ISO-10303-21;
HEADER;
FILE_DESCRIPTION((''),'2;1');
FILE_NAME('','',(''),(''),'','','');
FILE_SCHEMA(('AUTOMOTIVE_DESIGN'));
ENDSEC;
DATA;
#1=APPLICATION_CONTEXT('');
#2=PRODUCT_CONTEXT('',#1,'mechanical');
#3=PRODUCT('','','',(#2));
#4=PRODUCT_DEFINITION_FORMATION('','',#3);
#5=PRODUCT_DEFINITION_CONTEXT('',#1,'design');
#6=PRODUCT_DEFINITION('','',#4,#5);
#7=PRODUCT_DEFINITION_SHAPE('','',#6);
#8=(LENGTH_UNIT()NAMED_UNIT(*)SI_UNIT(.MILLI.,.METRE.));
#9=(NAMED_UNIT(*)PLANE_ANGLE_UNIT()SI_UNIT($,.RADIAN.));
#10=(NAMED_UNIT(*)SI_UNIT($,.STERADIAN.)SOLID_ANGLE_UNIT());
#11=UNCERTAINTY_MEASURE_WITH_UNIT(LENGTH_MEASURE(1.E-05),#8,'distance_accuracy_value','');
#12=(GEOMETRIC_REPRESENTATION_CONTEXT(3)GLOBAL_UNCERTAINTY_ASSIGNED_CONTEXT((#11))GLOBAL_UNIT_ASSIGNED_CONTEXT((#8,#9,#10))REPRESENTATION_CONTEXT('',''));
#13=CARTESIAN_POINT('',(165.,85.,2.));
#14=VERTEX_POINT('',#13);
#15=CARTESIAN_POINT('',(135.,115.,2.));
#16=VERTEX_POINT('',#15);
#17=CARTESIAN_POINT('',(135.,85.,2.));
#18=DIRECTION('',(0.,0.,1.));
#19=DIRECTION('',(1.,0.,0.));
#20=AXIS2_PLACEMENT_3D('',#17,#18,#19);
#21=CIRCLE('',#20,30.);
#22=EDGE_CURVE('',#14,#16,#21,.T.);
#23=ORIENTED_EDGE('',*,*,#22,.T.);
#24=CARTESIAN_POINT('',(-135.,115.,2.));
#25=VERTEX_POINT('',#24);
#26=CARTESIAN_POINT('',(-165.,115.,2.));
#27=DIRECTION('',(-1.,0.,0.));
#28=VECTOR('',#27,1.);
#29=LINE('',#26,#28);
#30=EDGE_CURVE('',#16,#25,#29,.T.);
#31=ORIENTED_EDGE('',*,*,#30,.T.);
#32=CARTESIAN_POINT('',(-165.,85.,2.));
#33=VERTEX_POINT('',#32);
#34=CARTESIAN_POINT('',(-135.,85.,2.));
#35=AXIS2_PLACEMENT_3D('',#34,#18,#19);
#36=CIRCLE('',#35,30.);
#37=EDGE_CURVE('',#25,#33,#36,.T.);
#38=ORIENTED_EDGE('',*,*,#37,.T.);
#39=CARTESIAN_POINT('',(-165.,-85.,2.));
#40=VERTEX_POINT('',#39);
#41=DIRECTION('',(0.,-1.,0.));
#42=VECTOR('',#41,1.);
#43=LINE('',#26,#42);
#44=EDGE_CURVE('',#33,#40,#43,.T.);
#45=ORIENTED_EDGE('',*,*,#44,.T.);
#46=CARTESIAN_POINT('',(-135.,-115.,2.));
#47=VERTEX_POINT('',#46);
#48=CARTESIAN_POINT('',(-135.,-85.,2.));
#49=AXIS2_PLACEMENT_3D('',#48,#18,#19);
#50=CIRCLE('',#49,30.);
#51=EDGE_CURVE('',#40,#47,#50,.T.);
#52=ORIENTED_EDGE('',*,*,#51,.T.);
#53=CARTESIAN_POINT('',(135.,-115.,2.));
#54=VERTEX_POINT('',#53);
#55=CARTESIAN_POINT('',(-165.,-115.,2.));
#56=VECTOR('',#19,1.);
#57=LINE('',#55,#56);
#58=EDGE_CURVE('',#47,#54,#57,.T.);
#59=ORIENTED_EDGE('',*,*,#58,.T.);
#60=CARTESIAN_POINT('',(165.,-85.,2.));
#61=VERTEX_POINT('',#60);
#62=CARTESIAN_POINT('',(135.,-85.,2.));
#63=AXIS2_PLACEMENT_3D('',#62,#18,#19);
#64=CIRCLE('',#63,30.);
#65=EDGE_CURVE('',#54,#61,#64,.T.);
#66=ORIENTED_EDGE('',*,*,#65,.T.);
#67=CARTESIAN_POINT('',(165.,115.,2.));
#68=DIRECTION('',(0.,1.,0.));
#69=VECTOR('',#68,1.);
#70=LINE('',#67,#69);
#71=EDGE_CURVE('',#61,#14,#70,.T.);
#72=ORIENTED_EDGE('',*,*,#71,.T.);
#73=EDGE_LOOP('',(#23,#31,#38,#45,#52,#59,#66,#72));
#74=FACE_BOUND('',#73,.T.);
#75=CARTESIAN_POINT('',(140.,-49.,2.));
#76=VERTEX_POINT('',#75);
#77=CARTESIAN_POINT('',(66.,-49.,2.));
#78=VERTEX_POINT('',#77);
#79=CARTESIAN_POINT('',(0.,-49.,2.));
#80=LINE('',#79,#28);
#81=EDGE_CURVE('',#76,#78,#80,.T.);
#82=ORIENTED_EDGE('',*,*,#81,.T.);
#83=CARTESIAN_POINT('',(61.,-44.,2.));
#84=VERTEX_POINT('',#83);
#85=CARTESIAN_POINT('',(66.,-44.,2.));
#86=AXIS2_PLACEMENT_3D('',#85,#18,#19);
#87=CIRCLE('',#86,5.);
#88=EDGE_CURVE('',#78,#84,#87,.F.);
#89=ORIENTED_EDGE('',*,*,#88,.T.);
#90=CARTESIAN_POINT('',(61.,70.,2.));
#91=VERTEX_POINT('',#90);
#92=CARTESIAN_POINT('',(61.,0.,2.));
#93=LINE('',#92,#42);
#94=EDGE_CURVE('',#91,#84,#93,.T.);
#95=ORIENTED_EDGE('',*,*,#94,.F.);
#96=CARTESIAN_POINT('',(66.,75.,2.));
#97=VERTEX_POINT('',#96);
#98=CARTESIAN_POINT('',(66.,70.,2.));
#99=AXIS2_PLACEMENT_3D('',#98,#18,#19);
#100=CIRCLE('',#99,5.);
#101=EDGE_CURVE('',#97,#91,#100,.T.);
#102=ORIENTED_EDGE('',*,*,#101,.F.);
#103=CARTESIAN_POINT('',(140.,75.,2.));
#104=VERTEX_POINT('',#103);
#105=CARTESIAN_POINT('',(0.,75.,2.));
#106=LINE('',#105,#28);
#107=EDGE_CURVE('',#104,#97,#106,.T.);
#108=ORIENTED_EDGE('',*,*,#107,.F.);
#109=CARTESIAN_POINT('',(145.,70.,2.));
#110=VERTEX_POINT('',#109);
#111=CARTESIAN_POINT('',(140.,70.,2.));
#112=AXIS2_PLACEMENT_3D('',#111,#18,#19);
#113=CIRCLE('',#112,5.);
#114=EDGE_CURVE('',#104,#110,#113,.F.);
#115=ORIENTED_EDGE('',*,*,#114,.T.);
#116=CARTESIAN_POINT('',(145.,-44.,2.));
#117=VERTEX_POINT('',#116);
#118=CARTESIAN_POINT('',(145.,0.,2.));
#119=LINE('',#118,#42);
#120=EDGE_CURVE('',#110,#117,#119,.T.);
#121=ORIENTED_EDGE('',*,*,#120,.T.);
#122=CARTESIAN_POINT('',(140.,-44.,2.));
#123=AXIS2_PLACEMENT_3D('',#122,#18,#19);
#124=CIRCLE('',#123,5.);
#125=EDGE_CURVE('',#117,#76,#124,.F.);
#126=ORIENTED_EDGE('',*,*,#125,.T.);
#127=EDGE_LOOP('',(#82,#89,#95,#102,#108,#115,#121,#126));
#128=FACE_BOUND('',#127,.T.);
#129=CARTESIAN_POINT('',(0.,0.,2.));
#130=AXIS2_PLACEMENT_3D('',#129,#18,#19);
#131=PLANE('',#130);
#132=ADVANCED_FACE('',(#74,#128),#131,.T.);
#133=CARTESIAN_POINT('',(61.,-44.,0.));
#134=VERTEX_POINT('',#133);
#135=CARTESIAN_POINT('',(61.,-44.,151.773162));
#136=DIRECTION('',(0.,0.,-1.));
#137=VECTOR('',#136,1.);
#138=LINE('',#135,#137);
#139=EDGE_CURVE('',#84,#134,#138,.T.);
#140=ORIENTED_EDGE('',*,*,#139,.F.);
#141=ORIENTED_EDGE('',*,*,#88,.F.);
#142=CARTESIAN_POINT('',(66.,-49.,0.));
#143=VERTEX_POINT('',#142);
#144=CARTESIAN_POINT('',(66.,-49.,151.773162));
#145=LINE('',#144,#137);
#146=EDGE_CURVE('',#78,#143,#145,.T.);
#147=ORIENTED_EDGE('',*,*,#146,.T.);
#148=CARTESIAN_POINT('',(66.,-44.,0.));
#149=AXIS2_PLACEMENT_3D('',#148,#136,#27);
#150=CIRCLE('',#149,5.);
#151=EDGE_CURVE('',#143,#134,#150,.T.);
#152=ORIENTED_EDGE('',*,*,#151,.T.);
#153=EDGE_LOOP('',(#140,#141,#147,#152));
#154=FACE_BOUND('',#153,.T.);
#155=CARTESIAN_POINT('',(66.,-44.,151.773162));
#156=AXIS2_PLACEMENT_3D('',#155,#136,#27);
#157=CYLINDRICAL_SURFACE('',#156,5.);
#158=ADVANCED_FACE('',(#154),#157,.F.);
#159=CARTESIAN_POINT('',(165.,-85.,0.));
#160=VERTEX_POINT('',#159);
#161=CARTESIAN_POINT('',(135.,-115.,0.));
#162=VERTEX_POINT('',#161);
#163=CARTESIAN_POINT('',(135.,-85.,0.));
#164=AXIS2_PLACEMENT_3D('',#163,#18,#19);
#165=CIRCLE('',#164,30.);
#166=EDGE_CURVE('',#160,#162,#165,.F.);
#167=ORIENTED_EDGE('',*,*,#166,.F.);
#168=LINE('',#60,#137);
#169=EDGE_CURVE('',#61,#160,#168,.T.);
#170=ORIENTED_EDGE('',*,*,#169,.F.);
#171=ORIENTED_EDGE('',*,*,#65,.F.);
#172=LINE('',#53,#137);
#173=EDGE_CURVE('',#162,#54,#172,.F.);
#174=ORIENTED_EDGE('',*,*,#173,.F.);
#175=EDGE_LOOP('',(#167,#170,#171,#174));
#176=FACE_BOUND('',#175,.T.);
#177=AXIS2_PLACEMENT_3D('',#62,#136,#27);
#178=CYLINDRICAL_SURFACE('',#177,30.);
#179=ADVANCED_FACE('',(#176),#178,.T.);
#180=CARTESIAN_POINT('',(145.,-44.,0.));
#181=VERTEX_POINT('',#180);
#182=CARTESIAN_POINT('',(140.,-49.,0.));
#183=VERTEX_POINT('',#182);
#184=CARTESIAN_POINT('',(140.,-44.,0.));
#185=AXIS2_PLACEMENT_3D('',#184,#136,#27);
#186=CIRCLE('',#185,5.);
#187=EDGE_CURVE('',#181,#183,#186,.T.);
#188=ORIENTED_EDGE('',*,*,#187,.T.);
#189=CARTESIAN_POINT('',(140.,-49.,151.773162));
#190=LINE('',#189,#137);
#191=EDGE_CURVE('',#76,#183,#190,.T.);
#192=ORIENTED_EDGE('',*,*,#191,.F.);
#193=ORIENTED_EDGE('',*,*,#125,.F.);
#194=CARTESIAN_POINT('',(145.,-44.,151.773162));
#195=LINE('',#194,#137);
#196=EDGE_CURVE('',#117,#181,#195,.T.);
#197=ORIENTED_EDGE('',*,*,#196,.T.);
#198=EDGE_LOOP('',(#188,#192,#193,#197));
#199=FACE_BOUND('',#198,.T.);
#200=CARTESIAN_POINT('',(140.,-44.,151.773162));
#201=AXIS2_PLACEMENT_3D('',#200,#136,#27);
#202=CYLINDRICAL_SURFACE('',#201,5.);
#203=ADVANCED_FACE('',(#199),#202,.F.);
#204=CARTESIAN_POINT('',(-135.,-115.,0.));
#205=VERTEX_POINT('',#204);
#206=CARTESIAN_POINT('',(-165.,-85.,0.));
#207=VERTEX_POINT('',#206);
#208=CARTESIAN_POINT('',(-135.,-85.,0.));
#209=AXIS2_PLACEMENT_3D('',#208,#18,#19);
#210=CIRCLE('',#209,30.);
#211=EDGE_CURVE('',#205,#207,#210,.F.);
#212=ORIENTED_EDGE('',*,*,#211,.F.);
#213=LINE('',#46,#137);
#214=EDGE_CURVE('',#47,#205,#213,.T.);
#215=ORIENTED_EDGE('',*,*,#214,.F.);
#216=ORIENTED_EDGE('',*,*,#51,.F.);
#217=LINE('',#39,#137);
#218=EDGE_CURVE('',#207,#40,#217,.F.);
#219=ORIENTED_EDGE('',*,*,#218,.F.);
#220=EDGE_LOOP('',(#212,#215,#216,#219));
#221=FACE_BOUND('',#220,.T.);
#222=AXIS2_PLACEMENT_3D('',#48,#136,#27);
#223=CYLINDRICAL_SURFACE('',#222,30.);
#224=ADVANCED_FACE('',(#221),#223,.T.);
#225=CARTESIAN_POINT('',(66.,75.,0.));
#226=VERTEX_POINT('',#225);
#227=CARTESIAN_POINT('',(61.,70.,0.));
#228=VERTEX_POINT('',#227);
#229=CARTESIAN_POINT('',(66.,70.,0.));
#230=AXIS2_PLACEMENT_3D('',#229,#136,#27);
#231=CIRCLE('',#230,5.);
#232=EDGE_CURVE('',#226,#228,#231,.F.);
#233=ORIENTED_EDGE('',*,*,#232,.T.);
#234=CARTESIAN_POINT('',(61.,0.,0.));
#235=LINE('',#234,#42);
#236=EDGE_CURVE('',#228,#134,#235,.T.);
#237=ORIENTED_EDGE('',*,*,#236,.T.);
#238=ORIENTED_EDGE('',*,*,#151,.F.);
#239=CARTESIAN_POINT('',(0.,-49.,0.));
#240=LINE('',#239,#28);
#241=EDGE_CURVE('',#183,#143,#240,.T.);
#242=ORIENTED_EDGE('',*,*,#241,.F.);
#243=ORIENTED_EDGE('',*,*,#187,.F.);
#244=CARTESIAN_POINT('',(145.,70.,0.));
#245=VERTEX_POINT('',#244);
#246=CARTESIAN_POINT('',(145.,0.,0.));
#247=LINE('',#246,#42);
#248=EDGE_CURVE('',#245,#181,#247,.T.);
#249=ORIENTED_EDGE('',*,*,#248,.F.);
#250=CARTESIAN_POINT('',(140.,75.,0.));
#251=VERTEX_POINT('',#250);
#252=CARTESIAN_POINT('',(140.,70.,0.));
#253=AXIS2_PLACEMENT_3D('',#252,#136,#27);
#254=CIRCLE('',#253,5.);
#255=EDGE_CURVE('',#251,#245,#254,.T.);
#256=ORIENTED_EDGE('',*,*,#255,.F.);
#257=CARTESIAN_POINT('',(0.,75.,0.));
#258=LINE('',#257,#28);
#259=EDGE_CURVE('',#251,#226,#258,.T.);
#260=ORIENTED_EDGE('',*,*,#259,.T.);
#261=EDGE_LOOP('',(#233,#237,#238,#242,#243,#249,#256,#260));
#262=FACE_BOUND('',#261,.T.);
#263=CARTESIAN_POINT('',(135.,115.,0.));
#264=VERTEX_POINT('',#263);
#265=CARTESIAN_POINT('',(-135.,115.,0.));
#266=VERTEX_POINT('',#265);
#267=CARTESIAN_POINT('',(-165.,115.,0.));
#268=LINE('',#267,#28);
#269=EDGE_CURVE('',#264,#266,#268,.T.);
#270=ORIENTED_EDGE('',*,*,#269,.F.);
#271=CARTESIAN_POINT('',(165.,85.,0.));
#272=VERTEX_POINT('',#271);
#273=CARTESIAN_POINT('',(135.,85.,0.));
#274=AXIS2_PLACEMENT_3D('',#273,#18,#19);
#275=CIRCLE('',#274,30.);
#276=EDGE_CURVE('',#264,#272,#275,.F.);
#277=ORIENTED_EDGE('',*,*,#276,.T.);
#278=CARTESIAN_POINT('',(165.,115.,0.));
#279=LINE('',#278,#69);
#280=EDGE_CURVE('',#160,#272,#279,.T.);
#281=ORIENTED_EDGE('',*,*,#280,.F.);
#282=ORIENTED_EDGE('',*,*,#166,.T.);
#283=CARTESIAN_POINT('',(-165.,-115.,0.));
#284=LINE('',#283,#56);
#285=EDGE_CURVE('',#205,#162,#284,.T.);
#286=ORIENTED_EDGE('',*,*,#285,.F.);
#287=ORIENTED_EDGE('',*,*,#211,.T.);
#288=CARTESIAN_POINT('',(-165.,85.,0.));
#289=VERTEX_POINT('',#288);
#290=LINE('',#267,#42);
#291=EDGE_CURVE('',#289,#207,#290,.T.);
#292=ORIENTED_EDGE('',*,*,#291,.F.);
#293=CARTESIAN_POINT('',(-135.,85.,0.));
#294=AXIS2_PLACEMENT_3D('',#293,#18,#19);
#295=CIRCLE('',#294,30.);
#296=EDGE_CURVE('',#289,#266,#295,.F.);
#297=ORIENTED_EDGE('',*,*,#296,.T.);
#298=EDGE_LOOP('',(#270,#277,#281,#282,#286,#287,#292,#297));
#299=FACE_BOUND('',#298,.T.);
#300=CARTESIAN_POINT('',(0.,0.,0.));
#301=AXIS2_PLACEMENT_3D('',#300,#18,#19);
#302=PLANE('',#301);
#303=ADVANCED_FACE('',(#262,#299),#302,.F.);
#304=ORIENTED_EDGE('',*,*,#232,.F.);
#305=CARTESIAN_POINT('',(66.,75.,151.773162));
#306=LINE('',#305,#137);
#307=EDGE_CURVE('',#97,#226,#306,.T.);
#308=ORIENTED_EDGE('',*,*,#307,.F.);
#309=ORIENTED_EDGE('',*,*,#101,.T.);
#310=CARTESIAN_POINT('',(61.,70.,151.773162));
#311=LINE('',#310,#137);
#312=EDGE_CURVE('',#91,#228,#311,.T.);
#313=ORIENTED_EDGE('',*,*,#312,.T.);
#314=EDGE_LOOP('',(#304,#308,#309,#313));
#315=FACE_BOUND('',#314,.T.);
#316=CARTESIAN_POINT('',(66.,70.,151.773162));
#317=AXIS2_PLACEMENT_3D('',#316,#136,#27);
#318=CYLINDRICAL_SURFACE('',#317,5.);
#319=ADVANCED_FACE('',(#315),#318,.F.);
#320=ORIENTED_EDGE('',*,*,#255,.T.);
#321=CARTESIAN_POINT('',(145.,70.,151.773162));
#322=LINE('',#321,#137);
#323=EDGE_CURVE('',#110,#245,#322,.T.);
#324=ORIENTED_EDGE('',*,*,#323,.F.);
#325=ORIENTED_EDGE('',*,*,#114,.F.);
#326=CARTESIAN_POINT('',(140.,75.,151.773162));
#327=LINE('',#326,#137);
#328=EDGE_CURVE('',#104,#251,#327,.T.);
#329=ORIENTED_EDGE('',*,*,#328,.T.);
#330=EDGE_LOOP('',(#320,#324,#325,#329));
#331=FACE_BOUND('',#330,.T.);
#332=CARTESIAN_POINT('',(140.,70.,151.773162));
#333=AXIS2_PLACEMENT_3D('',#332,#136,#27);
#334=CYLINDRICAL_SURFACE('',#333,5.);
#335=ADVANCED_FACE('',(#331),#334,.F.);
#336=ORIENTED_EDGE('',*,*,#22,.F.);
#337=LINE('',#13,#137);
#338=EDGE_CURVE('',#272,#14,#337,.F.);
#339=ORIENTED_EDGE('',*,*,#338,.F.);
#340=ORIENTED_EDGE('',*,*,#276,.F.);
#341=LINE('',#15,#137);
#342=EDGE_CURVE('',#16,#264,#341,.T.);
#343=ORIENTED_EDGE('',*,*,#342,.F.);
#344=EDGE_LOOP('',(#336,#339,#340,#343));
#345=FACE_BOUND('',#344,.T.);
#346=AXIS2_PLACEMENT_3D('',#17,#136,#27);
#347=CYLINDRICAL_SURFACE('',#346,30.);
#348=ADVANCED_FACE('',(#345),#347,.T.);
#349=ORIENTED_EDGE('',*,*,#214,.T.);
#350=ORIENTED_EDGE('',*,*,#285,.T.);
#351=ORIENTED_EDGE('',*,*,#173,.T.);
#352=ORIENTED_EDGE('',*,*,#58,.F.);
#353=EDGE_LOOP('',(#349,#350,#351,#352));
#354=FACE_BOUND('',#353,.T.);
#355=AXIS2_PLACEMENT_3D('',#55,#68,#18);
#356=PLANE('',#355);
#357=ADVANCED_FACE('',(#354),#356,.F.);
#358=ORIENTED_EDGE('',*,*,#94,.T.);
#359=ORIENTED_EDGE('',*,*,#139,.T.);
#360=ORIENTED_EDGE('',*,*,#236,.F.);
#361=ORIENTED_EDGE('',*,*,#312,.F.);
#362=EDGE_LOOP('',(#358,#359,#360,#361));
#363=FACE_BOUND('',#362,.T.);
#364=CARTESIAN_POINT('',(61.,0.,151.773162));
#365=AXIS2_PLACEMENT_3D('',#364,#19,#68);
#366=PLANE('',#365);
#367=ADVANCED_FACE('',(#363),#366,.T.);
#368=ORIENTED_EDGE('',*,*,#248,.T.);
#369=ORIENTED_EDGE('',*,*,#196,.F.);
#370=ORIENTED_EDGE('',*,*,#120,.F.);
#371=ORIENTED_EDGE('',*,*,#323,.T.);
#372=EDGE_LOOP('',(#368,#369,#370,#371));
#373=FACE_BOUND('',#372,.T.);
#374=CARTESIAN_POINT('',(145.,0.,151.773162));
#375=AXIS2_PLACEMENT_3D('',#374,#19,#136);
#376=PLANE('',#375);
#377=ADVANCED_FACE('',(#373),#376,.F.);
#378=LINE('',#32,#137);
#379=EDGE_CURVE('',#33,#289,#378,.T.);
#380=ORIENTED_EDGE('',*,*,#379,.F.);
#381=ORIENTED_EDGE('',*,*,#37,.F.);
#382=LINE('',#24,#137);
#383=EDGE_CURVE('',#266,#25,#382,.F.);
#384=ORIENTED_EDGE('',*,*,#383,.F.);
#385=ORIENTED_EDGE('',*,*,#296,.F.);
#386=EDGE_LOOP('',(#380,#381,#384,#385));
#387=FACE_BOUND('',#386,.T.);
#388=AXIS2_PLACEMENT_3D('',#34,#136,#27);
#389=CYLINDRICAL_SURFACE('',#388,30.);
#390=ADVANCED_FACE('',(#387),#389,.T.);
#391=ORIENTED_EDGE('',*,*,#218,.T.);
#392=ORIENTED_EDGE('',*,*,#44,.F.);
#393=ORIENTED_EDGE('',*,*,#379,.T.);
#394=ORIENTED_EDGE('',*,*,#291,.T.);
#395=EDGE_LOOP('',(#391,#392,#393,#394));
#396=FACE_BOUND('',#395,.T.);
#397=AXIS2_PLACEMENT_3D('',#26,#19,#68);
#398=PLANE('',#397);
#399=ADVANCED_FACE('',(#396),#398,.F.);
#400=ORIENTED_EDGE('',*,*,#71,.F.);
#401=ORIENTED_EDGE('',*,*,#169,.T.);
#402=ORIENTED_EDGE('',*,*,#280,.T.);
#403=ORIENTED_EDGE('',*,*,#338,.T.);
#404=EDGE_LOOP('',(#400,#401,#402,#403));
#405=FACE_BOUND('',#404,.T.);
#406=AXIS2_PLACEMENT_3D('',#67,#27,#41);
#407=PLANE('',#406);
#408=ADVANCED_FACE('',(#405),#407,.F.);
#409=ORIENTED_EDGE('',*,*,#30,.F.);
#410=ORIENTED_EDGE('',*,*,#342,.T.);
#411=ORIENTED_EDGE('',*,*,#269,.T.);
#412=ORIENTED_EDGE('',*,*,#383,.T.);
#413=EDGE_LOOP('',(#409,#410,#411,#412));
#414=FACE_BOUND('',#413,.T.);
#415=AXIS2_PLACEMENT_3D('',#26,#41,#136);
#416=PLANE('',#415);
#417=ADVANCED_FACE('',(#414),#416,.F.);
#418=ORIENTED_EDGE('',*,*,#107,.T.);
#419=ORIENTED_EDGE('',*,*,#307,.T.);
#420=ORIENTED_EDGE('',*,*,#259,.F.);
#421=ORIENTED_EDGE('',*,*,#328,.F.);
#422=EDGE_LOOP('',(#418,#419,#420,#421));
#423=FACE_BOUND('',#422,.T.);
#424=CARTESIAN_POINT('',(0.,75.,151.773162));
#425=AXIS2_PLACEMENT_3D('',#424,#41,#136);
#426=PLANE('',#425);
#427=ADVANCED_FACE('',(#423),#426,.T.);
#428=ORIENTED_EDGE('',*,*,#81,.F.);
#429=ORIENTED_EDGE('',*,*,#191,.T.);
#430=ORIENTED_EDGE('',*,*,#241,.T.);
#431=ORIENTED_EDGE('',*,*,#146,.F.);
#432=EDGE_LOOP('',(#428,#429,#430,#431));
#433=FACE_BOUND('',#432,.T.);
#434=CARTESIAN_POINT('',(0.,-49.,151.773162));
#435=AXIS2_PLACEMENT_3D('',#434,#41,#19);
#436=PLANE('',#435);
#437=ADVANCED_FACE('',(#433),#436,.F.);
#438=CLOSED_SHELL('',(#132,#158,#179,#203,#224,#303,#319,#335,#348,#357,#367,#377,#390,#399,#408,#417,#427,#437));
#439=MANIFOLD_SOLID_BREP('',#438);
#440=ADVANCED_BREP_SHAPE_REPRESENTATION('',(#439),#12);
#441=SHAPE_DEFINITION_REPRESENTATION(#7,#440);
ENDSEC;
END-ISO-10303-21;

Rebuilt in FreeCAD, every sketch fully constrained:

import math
import FreeCAD as App
import Part
import Sketcher

V = App.Vector


def edges_at(feature, points):
    """Names of the edges that pass closest to the given points."""
    edges = feature.Shape.Edges
    near = lambda p: min(range(len(edges)), key=lambda i: edges[i].distToShape(Part.Vertex(*p))[0])
    return sorted({f"Edge{near(p) + 1}" for p in points})

doc = App.newDocument("Part")
body = doc.addObject("PartDesign::Body", "Body")

# Sketch on XY plane
sketch1 = doc.addObject("Sketcher::SketchObject", "Sketch")
body.addObject(sketch1)
sketch1.AttachmentSupport = (doc.XY_Plane, [""])
sketch1.MapMode = "FlatFace"
sketch1.addGeometry(Part.LineSegment(V(-165, 115, 0), V(-165, -115, 0)), False)
sketch1.addGeometry(Part.LineSegment(V(-165, -115, 0), V(165, -115, 0)), False)
sketch1.addGeometry(Part.LineSegment(V(165, -115, 0), V(165, 115, 0)), False)
sketch1.addGeometry(Part.LineSegment(V(165, 115, 0), V(-165, 115, 0)), False)
sketch1.addConstraint(Sketcher.Constraint("Coincident", 0, 2, 1, 1))
sketch1.addConstraint(Sketcher.Constraint("Coincident", 1, 2, 2, 1))
sketch1.addConstraint(Sketcher.Constraint("Coincident", 2, 2, 3, 1))
sketch1.addConstraint(Sketcher.Constraint("Coincident", 3, 2, 0, 1))
sketch1.addConstraint(Sketcher.Constraint("Vertical", 0))
sketch1.addConstraint(Sketcher.Constraint("Horizontal", 1))
sketch1.addConstraint(Sketcher.Constraint("Vertical", 2))
sketch1.addConstraint(Sketcher.Constraint("Horizontal", 3))
sketch1.addConstraint(Sketcher.Constraint("Symmetric", 0, 2, 2, 2, -1, 1))
sketch1.addConstraint(Sketcher.Constraint("DistanceX", 1, 1, 1, 2, 330.0))
sketch1.addConstraint(Sketcher.Constraint("DistanceY", 0, 2, 0, 1, 230.0))
pad1 = doc.addObject("PartDesign::Pad", "Pad")
body.addObject(pad1)
pad1.Profile = sketch1
pad1.Length = 2

# Sketch on XY plane
sketch2 = doc.addObject("Sketcher::SketchObject", "Sketch001")
body.addObject(sketch2)
sketch2.AttachmentSupport = (doc.XY_Plane, [""])
sketch2.MapMode = "FlatFace"
sketch2.addGeometry(Part.LineSegment(V(66, 75, 0), V(140, 75, 0)), False)
sketch2.addGeometry(Part.ArcOfCircle(Part.Circle(V(140, 70, 0), V(0, 0, 1), 5), math.radians(0), math.radians(90)), False)
sketch2.addGeometry(Part.LineSegment(V(145, 70, 0), V(145, -44, 0)), False)
sketch2.addGeometry(Part.ArcOfCircle(Part.Circle(V(140, -44, 0), V(0, 0, 1), 5), math.radians(-90), math.radians(0)), False)
sketch2.addGeometry(Part.LineSegment(V(140, -49, 0), V(66, -49, 0)), False)
sketch2.addGeometry(Part.ArcOfCircle(Part.Circle(V(66, -44, 0), V(0, 0, 1), 5), math.radians(180), math.radians(270)), False)
sketch2.addGeometry(Part.LineSegment(V(61, -44, 0), V(61, 70, 0)), False)
sketch2.addGeometry(Part.ArcOfCircle(Part.Circle(V(66, 70, 0), V(0, 0, 1), 5), math.radians(90), math.radians(180)), False)
sketch2.addConstraint(Sketcher.Constraint("Tangent", 0, 2, 1, 2))
sketch2.addConstraint(Sketcher.Constraint("Tangent", 1, 1, 2, 1))
sketch2.addConstraint(Sketcher.Constraint("Tangent", 2, 2, 3, 2))
sketch2.addConstraint(Sketcher.Constraint("Tangent", 3, 1, 4, 1))
sketch2.addConstraint(Sketcher.Constraint("Tangent", 4, 2, 5, 2))
sketch2.addConstraint(Sketcher.Constraint("Tangent", 5, 1, 6, 1))
sketch2.addConstraint(Sketcher.Constraint("Tangent", 6, 2, 7, 2))
sketch2.addConstraint(Sketcher.Constraint("Tangent", 7, 1, 0, 1))
sketch2.addConstraint(Sketcher.Constraint("Horizontal", 0))
sketch2.addConstraint(Sketcher.Constraint("Vertical", 2))
sketch2.addConstraint(Sketcher.Constraint("Horizontal", 4))
sketch2.addConstraint(Sketcher.Constraint("Vertical", 6))
sketch2.addConstraint(Sketcher.Constraint("Equal", 1, 3))
sketch2.addConstraint(Sketcher.Constraint("Equal", 3, 5))
sketch2.addConstraint(Sketcher.Constraint("Equal", 5, 7))
sketch2.addConstraint(Sketcher.Constraint("Radius", 1, 5.0))
sketch2.addConstraint(Sketcher.Constraint("DistanceX", 0, 1, 0, 2, 74.0))
sketch2.addConstraint(Sketcher.Constraint("DistanceY", 2, 2, 2, 1, 114.0))
sketch2.addConstraint(Sketcher.Constraint("DistanceX", -1, 1, 1, 3, 140.0))
sketch2.addConstraint(Sketcher.Constraint("DistanceY", -1, 1, 1, 3, 70.0))
pocket1 = doc.addObject("PartDesign::Pocket", "Pocket")
body.addObject(pocket1)
pocket1.Profile = sketch2
pocket1.Length = 2
pocket1.Reversed = True
doc.recompute()

fillet = doc.addObject("PartDesign::Fillet", "Fillet")
body.addObject(fillet)
fillet.Base = (pocket1, edges_at(pocket1, [
    (165, -115, 1),
    (-165, -115, 1),
    (-165, 115, 1),
    (165, 115, 1),
]))
fillet.Radius = 30

doc.recompute()
